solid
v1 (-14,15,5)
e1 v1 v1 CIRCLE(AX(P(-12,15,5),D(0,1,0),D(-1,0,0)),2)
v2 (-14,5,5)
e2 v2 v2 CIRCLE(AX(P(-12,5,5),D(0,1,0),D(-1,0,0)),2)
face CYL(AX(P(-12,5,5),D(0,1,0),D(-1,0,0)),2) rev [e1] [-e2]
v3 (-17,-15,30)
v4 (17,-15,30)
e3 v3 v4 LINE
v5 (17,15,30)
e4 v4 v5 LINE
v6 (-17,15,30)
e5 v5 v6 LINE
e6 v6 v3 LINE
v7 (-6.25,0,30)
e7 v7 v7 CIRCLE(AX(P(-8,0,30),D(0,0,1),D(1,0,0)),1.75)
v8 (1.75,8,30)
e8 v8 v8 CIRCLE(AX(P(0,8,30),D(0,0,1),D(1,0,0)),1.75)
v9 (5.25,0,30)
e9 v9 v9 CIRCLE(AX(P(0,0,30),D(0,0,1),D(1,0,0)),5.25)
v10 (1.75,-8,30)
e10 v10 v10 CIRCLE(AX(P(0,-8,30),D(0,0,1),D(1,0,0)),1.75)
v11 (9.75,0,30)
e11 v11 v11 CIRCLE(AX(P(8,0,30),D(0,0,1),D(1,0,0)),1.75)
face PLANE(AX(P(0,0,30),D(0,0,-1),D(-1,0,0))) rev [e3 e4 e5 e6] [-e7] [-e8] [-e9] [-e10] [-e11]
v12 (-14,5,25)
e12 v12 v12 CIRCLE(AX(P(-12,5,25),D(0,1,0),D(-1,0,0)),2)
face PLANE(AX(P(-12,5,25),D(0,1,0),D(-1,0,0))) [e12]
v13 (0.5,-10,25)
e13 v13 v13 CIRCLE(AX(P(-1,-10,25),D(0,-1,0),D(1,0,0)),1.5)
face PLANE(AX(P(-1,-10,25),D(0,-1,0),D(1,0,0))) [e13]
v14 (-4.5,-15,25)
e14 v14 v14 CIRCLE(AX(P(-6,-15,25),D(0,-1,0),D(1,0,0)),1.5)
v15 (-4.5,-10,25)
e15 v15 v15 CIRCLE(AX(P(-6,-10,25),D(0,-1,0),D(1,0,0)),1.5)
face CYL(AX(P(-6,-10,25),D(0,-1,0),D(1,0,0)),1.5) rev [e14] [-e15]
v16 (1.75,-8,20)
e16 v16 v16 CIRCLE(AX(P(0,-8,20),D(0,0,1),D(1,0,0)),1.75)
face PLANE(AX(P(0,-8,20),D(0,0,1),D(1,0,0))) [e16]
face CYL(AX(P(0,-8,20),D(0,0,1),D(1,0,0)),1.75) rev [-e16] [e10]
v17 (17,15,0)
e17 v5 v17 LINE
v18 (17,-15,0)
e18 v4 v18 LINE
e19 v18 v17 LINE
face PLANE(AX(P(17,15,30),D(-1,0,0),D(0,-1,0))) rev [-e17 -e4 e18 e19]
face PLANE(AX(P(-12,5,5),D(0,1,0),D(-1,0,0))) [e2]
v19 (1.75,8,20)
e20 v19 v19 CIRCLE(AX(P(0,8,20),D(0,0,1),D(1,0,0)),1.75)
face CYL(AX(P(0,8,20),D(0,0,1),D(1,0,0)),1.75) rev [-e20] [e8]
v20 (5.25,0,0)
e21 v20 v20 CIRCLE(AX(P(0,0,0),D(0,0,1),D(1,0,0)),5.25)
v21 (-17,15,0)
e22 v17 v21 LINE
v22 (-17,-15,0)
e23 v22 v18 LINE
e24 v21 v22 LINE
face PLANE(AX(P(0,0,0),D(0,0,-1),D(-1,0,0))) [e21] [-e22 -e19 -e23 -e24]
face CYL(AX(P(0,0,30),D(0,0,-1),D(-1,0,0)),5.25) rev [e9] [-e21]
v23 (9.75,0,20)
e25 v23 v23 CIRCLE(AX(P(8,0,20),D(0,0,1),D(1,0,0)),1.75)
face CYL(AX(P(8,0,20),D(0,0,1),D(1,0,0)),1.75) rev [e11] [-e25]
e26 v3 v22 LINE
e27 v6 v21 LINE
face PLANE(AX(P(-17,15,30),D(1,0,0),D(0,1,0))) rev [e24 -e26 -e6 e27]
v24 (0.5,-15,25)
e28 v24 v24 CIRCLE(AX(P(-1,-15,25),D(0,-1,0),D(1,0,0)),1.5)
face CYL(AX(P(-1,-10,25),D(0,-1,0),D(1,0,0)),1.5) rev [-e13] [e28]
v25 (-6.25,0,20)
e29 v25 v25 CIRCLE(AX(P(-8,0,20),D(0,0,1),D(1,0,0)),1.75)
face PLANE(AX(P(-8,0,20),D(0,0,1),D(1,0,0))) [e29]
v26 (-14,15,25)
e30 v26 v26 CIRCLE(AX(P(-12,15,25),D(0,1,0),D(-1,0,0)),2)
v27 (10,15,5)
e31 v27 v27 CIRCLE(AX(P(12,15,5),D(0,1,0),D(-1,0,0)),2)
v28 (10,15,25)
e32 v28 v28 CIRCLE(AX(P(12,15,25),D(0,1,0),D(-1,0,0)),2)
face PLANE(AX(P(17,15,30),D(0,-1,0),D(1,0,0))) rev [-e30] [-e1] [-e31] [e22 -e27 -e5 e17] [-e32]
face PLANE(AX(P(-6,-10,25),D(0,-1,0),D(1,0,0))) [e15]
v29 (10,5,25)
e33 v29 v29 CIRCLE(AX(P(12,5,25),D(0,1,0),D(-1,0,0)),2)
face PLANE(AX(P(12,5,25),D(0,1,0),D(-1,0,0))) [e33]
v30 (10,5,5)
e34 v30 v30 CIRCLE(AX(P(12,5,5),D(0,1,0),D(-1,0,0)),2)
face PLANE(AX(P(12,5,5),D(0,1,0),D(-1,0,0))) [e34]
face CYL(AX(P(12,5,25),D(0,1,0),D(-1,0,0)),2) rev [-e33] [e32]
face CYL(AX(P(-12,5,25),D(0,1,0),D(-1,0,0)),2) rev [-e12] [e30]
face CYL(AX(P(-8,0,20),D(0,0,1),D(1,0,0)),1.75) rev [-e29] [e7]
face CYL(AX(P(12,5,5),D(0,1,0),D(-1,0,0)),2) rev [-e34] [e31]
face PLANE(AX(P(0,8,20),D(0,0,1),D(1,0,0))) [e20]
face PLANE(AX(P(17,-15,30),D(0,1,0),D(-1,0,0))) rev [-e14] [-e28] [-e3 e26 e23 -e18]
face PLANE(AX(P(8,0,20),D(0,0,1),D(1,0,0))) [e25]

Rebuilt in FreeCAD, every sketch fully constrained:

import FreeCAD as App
import Part
import Sketcher
from FreeCAD import Vector


def add_polygon(sketch, points):
    """Adds a closed chain of lines whose ends are joined by coincident constraints."""
    first, n = sketch.GeometryCount, len(points)
    for a, b in zip(points, points[1:] + points[:1]):
        sketch.addGeometry(Part.LineSegment(App.Vector(*a, 0), App.Vector(*b, 0)), False)
    for i in range(n):
        sketch.addConstraint(Sketcher.Constraint("Coincident", first + i, 2, first + (i + 1) % n, 1))

doc = App.newDocument("Part")
body = doc.addObject("PartDesign::Body", "Body")

sketch1 = body.newObject("Sketcher::SketchObject", "Sketch")
sketch1.AttachmentSupport = (doc.getObject("XY_Plane"), [""])
sketch1.MapMode = "FlatFace"
add_polygon(sketch1, [(-17, 15), (-17, -15), (17, -15), (17, 15)])
sketch1.addGeometry(Part.Circle(Vector(0, 0, 0), Vector(0, 0, 1), 5), False)
sketch1.addConstraint([
    Sketcher.Constraint("Vertical", 0),
    Sketcher.Constraint("Horizontal", 1),
    Sketcher.Constraint("Vertical", 2),
    Sketcher.Constraint("Horizontal", 3),
    Sketcher.Constraint("Coincident", 4, 3, -1, 1),
    Sketcher.Constraint("Symmetric", 0, 2, 2, 2, -1, 1),
    Sketcher.Constraint("Diameter", 4, 10.5),
    Sketcher.Constraint("DistanceX", 1, 1, 1, 2, 34.0),
    Sketcher.Constraint("DistanceY", 0, 2, 0, 1, 30.0),
])
pad1 = body.newObject("PartDesign::Pad", "Pad")
pad1.Profile = sketch1
pad1.Length = 30

sketch2 = body.newObject("Sketcher::SketchObject", "Sketch001")
sketch2.AttachmentSupport = (doc.getObject("XY_Plane"), [""])
sketch2.MapMode = "FlatFace"
sketch2.AttachmentOffset = App.Placement(Vector(0, 0, 30), App.Rotation())
sketch2.addGeometry([
    Part.Circle(Vector(-8, 0, 0), Vector(0, 0, 1), 1.8),
    Part.Circle(Vector(0, 8, 0), Vector(0, 0, 1), 1.8),
    Part.Circle(Vector(8, 0, 0), Vector(0, 0, 1), 1.8),
    Part.Circle(Vector(0, -8, 0), Vector(0, 0, 1), 1.8),
], False)
sketch2.addConstraint([
    Sketcher.Constraint("Equal", 0, 1),
    Sketcher.Constraint("Equal", 1, 2),
    Sketcher.Constraint("Equal", 2, 3),
    Sketcher.Constraint("Symmetric", 0, 3, 2, 3, -1, 1),
    Sketcher.Constraint("Symmetric", 1, 3, 3, 3, -1, 1),
    Sketcher.Constraint("PointOnObject", 0, 3, -1),
    Sketcher.Constraint("PointOnObject", 1, 3, -2),
    Sketcher.Constraint("Diameter", 0, 3.5),
    Sketcher.Constraint("DistanceX", 0, 3, -1, 1, 8.0),
    Sketcher.Constraint("DistanceY", -1, 1, 1, 3, 8.0),
])
pocket1 = body.newObject("PartDesign::Pocket", "Pocket")
pocket1.Profile = sketch2
pocket1.Length = 10

sketch3 = body.newObject("Sketcher::SketchObject", "Sketch002")
sketch3.AttachmentSupport = (doc.getObject("XZ_Plane"), [""])
sketch3.MapMode = "FlatFace"
sketch3.AttachmentOffset = App.Placement(Vector(0, 0, -15), App.Rotation())
sketch3.addGeometry([
    Part.Circle(Vector(12, 25, 0), Vector(0, 0, 1), 2),
    Part.Circle(Vector(-12, 25, 0), Vector(0, 0, 1), 2),
    Part.Circle(Vector(-12, 5, 0), Vector(0, 0, 1), 2),
    Part.Circle(Vector(12, 5, 0), Vector(0, 0, 1), 2),
], False)
sketch3.addConstraint([
    Sketcher.Constraint("Equal", 0, 1),
    Sketcher.Constraint("Equal", 1, 2),
    Sketcher.Constraint("Equal", 2, 3),
    Sketcher.Constraint("Symmetric", 0, 3, 1, 3, -2),
    Sketcher.Constraint("Symmetric", 2, 3, 3, 3, -2),
    Sketcher.Constraint("Vertical", 1, 3, 2, 3),
    Sketcher.Constraint("Diameter", 0, 4.0),
    Sketcher.Constraint("DistanceX", -1, 1, 0, 3, 12.0),
    Sketcher.Constraint("DistanceY", -1, 1, 0, 3, 25.0),
    Sketcher.Constraint("DistanceY", -1, 1, 2, 3, 5.0),
])
pocket2 = body.newObject("PartDesign::Pocket", "Pocket001")
pocket2.Profile = sketch3
pocket2.Length = 10
pocket2.Reversed = True

sketch4 = body.newObject("Sketcher::SketchObject", "Sketch003")
sketch4.AttachmentSupport = (doc.getObject("XZ_Plane"), [""])
sketch4.MapMode = "FlatFace"
sketch4.AttachmentOffset = App.Placement(Vector(0, 0, 15), App.Rotation())
sketch4.addGeometry([
    Part.Circle(Vector(-1, 25, 0), Vector(0, 0, 1), 1.5),
    Part.Circle(Vector(-6, 25, 0), Vector(0, 0, 1), 1.5),
], False)
sketch4.addConstraint([
    Sketcher.Constraint("Equal", 0, 1),
    Sketcher.Constraint("Horizontal", 0, 3, 1, 3),
    Sketcher.Constraint("Diameter", 0, 3.0),
    Sketcher.Constraint("DistanceX", 0, 3, -1, 1, 1.0),
    Sketcher.Constraint("DistanceY", -1, 1, 0, 3, 25.0),
    Sketcher.Constraint("DistanceX", 1, 3, -1, 1, 6.0),
])
pocket3 = body.newObject("PartDesign::Pocket", "Pocket002")
pocket3.Profile = sketch4
pocket3.Length = 5

doc.recompute()
